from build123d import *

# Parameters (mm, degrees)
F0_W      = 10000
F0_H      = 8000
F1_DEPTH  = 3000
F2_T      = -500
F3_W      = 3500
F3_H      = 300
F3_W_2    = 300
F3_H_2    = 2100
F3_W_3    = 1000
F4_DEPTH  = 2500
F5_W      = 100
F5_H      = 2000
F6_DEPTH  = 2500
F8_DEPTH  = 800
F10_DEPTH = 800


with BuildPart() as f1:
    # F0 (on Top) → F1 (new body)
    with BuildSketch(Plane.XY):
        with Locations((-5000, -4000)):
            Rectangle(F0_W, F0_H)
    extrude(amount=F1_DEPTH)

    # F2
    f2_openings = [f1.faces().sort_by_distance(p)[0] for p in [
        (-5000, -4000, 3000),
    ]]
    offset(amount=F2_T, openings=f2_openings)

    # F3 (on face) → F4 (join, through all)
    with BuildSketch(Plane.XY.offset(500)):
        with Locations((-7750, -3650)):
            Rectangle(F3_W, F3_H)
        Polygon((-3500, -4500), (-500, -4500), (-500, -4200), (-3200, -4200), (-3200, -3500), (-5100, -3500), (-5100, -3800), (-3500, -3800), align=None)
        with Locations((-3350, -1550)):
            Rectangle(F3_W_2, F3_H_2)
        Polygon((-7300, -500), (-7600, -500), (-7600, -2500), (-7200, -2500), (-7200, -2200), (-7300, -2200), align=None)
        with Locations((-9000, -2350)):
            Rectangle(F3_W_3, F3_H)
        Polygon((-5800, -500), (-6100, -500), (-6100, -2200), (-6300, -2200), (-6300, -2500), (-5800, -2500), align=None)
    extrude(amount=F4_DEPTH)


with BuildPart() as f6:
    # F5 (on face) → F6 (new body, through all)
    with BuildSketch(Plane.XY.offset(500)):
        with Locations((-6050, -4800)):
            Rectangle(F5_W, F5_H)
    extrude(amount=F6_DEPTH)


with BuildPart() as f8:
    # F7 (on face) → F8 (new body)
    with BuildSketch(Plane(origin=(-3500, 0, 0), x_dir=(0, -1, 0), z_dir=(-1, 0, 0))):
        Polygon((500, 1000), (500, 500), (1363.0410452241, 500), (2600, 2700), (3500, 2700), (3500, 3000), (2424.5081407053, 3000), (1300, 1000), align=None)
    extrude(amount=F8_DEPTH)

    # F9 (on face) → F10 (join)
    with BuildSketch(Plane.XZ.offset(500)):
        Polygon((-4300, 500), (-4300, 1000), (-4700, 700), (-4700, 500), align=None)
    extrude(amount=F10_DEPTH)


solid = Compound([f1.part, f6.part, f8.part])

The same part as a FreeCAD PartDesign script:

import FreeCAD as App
import Part
import Sketcher
from FreeCAD import Vector
Q = App.Units.Quantity


def faces_at(feature, points):
    """Names of the faces that lie closest to the given points."""
    faces = feature.Shape.Faces
    near = lambda p: min(range(len(faces)), key=lambda i: faces[i].distToShape(Part.Vertex(*p))[0])
    return sorted({f"Face{near(p) + 1}" for p in points})


def add_polygon(sketch, points):
    """Adds a closed chain of lines whose ends are joined by coincident constraints."""
    first, n = sketch.GeometryCount, len(points)
    for a, b in zip(points, points[1:] + points[:1]):
        sketch.addGeometry(Part.LineSegment(App.Vector(*a, 0), App.Vector(*b, 0)), False)
    for i in range(n):
        sketch.addConstraint(Sketcher.Constraint("Coincident", first + i, 2, first + (i + 1) % n, 1))

doc = App.newDocument("Part")
body = doc.addObject("PartDesign::Body", "Body")

# Sketch on XY plane
sketch1 = doc.addObject("Sketcher::SketchObject", "Sketch")
body.addObject(sketch1)
sketch1.AttachmentSupport = (doc.XY_Plane, [""])
sketch1.MapMode = "FlatFace"
add_polygon(sketch1, [(-10000, 0), (-10000, -8000), (0, -8000), (0, 0)])  # lines 0-3
sketch1.addConstraint(Sketcher.Constraint("Vertical", 0))
sketch1.addConstraint(Sketcher.Constraint("Horizontal", 1))
sketch1.addConstraint(Sketcher.Constraint("Vertical", 2))
sketch1.addConstraint(Sketcher.Constraint("Horizontal", 3))
sketch1.addConstraint(Sketcher.Constraint("Coincident", 2, 2, -1, 1))
sketch1.addConstraint(Sketcher.Constraint("DistanceX", 1, 1, 1, 2, Q("10000 mm")))
sketch1.addConstraint(Sketcher.Constraint("DistanceY", 0, 2, 0, 1, Q("8000 mm")))
pad1 = doc.addObject("PartDesign::Pad", "Pad")
body.addObject(pad1)
pad1.Profile = sketch1
pad1.Length = 3000
doc.recompute()

thickness = doc.addObject("PartDesign::Thickness", "Thickness")
body.addObject(thickness)
thickness.Base = (pad1, faces_at(pad1, [(-5000, -4000, 3000)]))
thickness.Value = 500
thickness.Reversed = True
thickness.Join = "Arc"

# Sketch on XY plane
sketch2 = doc.addObject("Sketcher::SketchObject", "Sketch001")
body.addObject(sketch2)
sketch2.AttachmentSupport = (doc.XY_Plane, [""])
sketch2.MapMode = "FlatFace"
sketch2.AttachmentOffset = App.Placement(Vector(0, 0, 500), App.Rotation())
add_polygon(sketch2, [(-9500, -3500), (-9500, -3800), (-6000, -3800), (-6000, -3500)])  # lines 0-3
add_polygon(sketch2, [(-3500, -4500), (-500, -4500), (-500, -4200), (-3200, -4200), (-3200, -3500), (-5100, -3500), (-5100, -3800), (-3500, -3800)])  # lines 4-11
add_polygon(sketch2, [(-3500, -500), (-3500, -2600), (-3200, -2600), (-3200, -500)])  # lines 12-15
add_polygon(sketch2, [(-7300, -500), (-7600, -500), (-7600, -2500), (-7200, -2500), (-7200, -2200), (-7300, -2200)])  # lines 16-21
add_polygon(sketch2, [(-9500, -2200), (-9500, -2500), (-8500, -2500), (-8500, -2200)])  # lines 22-25
add_polygon(sketch2, [(-5800, -500), (-6100, -500), (-6100, -2200), (-6300, -2200), (-6300, -2500), (-5800, -2500)])  # lines 26-31
sketch2.addConstraint(Sketcher.Constraint("Vertical", 0))
sketch2.addConstraint(Sketcher.Constraint("Horizontal", 1))
sketch2.addConstraint(Sketcher.Constraint("Vertical", 2))
sketch2.addConstraint(Sketcher.Constraint("Horizontal", 3))
sketch2.addConstraint(Sketcher.Constraint("Horizontal", 4))
sketch2.addConstraint(Sketcher.Constraint("Vertical", 5))
sketch2.addConstraint(Sketcher.Constraint("Horizontal", 6))
sketch2.addConstraint(Sketcher.Constraint("Vertical", 7))
sketch2.addConstraint(Sketcher.Constraint("Horizontal", 8))
sketch2.addConstraint(Sketcher.Constraint("Vertical", 9))
sketch2.addConstraint(Sketcher.Constraint("Horizontal", 10))
sketch2.addConstraint(Sketcher.Constraint("Vertical", 11))
sketch2.addConstraint(Sketcher.Constraint("Vertical", 12))
sketch2.addConstraint(Sketcher.Constraint("Horizontal", 13))
sketch2.addConstraint(Sketcher.Constraint("Vertical", 14))
sketch2.addConstraint(Sketcher.Constraint("Horizontal", 15))
sketch2.addConstraint(Sketcher.Constraint("Horizontal", 16))
sketch2.addConstraint(Sketcher.Constraint("Vertical", 17))
sketch2.addConstraint(Sketcher.Constraint("Horizontal", 18))
sketch2.addConstraint(Sketcher.Constraint("Vertical", 19))
sketch2.addConstraint(Sketcher.Constraint("Horizontal", 20))
sketch2.addConstraint(Sketcher.Constraint("Vertical", 21))
sketch2.addConstraint(Sketcher.Constraint("Vertical", 22))
sketch2.addConstraint(Sketcher.Constraint("Horizontal", 23))
sketch2.addConstraint(Sketcher.Constraint("Vertical", 24))
sketch2.addConstraint(Sketcher.Constraint("Horizontal", 25))
sketch2.addConstraint(Sketcher.Constraint("Horizontal", 26))
sketch2.addConstraint(Sketcher.Constraint("Vertical", 27))
sketch2.addConstraint(Sketcher.Constraint("Horizontal", 28))
sketch2.addConstraint(Sketcher.Constraint("Vertical", 29))
sketch2.addConstraint(Sketcher.Constraint("Horizontal", 30))
sketch2.addConstraint(Sketcher.Constraint("Vertical", 31))
sketch2.addConstraint(Sketcher.Constraint("Horizontal", 3, 2, 7, 2))
sketch2.addConstraint(Sketcher.Constraint("Horizontal", 1, 2, 9, 2))
sketch2.addConstraint(Sketcher.Constraint("Horizontal", 15, 2, 16, 2))
sketch2.addConstraint(Sketcher.Constraint("Horizontal", 18, 2, 22, 2))
sketch2.addConstraint(Sketcher.Constraint("Horizontal", 20, 2, 24, 2))
sketch2.addConstraint(Sketcher.Constraint("Horizontal", 21, 2, 26, 2))
sketch2.addConstraint(Sketcher.Constraint("Horizontal", 25, 2, 27, 2))
sketch2.addConstraint(Sketcher.Constraint("Horizontal", 23, 2, 29, 2))
sketch2.addConstraint(Sketcher.Constraint("Vertical", 11, 2, 12, 2))
sketch2.addConstraint(Sketcher.Constraint("Vertical", 7, 2, 13, 2))
sketch2.addConstraint(Sketcher.Constraint("Vertical", 3, 2, 22, 2))
sketch2.addConstraint(Sketcher.Constraint("Equal", 15, 16))
sketch2.addConstraint(Sketcher.Constraint("Equal", 16, 26))
sketch2.addConstraint(Sketcher.Constraint("Equal", 26, 0))
sketch2.addConstraint(Sketcher.Constraint("Equal", 2, 5))
sketch2.addConstraint(Sketcher.Constraint("Equal", 9, 19))
sketch2.addConstraint(Sketcher.Constraint("DistanceX", 1, 1, 1, 2, Q("3500 mm")))
sketch2.addConstraint(Sketcher.Constraint("DistanceX", 4, 1, 4, 2, Q("3000 mm")))
sketch2.addConstraint(Sketcher.Constraint("DistanceX", 6, 2, 6, 1, Q("2700 mm")))
sketch2.addConstraint(Sketcher.Constraint("DistanceX", 8, 2, 8, 1, Q("1900 mm")))
sketch2.addConstraint(Sketcher.Constraint("DistanceX", 18, 1, 18, 2, Q("400 mm")))
sketch2.addConstraint(Sketcher.Constraint("DistanceX", 23, 1, 23, 2, Q("1000 mm")))
sketch2.addConstraint(Sketcher.Constraint("DistanceX", 28, 2, 28, 1, Q("200 mm")))
sketch2.addConstraint(Sketcher.Constraint("DistanceY", 7, 1, 7, 2, Q("700 mm")))
sketch2.addConstraint(Sketcher.Constraint("DistanceY", 12, 2, 12, 1, Q("2100 mm")))
sketch2.addConstraint(Sketcher.Constraint("DistanceY", 17, 2, 17, 1, Q("2000 mm")))
sketch2.addConstraint(Sketcher.Constraint("DistanceX", 0, 2, -1, 1, Q("9500 mm")))
sketch2.addConstraint(Sketcher.Constraint("DistanceY", 0, 2, -1, 1, Q("3800 mm")))
sketch2.addConstraint(Sketcher.Constraint("DistanceX", 4, 2, -1, 1, Q("500 mm")))
sketch2.addConstraint(Sketcher.Constraint("DistanceY", 12, 2, -1, 1, Q("2600 mm")))
sketch2.addConstraint(Sketcher.Constraint("DistanceX", 16, 2, -1, 1, Q("7600 mm")))
sketch2.addConstraint(Sketcher.Constraint("DistanceX", 26, 2, -1, 1, Q("6100 mm")))
pad2 = doc.addObject("PartDesign::Pad", "Pad001")
body.addObject(pad2)
pad2.Profile = sketch2
pad2.Length = 2500
body2 = doc.addObject("PartDesign::Body", "Body001")

# Sketch on XY plane
sketch3 = doc.addObject("Sketcher::SketchObject", "Sketch002")
body2.addObject(sketch3)
sketch3.AttachmentSupport = (doc.getObject("XY_Plane001"), [""])
sketch3.MapMode = "FlatFace"
sketch3.AttachmentOffset = App.Placement(Vector(0, 0, 500), App.Rotation())
add_polygon(sketch3, [(-6100, -3800), (-6100, -5800), (-6000, -5800), (-6000, -3800)])  # lines 0-3
sketch3.addConstraint(Sketcher.Constraint("Vertical", 0))
sketch3.addConstraint(Sketcher.Constraint("Horizontal", 1))
sketch3.addConstraint(Sketcher.Constraint("Vertical", 2))
sketch3.addConstraint(Sketcher.Constraint("Horizontal", 3))
sketch3.addConstraint(Sketcher.Constraint("DistanceX", 1, 1, 1, 2, Q("100 mm")))
sketch3.addConstraint(Sketcher.Constraint("DistanceY", 0, 2, 0, 1, Q("2000 mm")))
sketch3.addConstraint(Sketcher.Constraint("DistanceX", 0, 2, -1, 1, Q("6100 mm")))
sketch3.addConstraint(Sketcher.Constraint("DistanceY", 0, 2, -1, 1, Q("5800 mm")))
pad3 = doc.addObject("PartDesign::Pad", "Pad002")
body2.addObject(pad3)
pad3.Profile = sketch3
pad3.Length = 2500
body3 = doc.addObject("PartDesign::Body", "Body002")

# Sketch on YZ plane
sketch4 = doc.addObject("Sketcher::SketchObject", "Sketch003")
body3.addObject(sketch4)
sketch4.AttachmentSupport = (doc.getObject("YZ_Plane002"), [""])
sketch4.MapMode = "FlatFace"
sketch4.AttachmentOffset = App.Placement(Vector(0, 0, -3500), App.Rotation())
add_polygon(sketch4, [(-500, 1000), (-500, 500), (-1363, 500), (-2600, 2700), (-3500, 2700), (-3500, 3000), (-2425, 3000), (-1300, 1000)])  # lines 0-7
sketch4.addConstraint(Sketcher.Constraint("Vertical", 0))
sketch4.addConstraint(Sketcher.Constraint("Horizontal", 1))
sketch4.addConstraint(Sketcher.Constraint("Horizontal", 3))
sketch4.addConstraint(Sketcher.Constraint("Vertical", 4))
sketch4.addConstraint(Sketcher.Constraint("Horizontal", 5))
sketch4.addConstraint(Sketcher.Constraint("Horizontal", 7))
sketch4.addConstraint(Sketcher.Constraint("Parallel", 2, 6))
sketch4.addConstraint(Sketcher.Constraint("DistanceX", 3, 2, 3, 1, Q("900 mm")))
sketch4.addConstraint(Sketcher.Constraint("DistanceX", 7, 1, 7, 2, Q("800 mm")))
sketch4.addConstraint(Sketcher.Constraint("DistanceY", 0, 2, 0, 1, Q("500 mm")))
sketch4.addConstraint(Sketcher.Constraint("DistanceY", 4, 1, 4, 2, Q("300 mm")))
sketch4.addConstraint(Sketcher.Constraint("DistanceX", 0, 2, -1, 1, Q("500 mm")))
sketch4.addConstraint(Sketcher.Constraint("DistanceY", -1, 1, 0, 2, Q("500 mm")))
sketch4.addConstraint(Sketcher.Constraint("DistanceX", 2, 2, -1, 1, Q("2600 mm")))
sketch4.addConstraint(Sketcher.Constraint("DistanceY", -1, 1, 2, 2, Q("2700 mm")))
sketch4.addConstraint(Sketcher.Constraint("DistanceX", 5, 1, 5, 2, Q("1075.491859 mm")))
pad4 = doc.addObject("PartDesign::Pad", "Pad003")
body3.addObject(pad4)
pad4.Profile = sketch4
pad4.Length = 800
pad4.Reversed = True

# Sketch on XZ plane
sketch5 = doc.addObject("Sketcher::SketchObject", "Sketch004")
body3.addObject(sketch5)
sketch5.AttachmentSupport = (doc.getObject("XZ_Plane002"), [""])
sketch5.MapMode = "FlatFace"
sketch5.AttachmentOffset = App.Placement(Vector(0, 0, 500), App.Rotation())
add_polygon(sketch5, [(-4300, 500), (-4300, 1000), (-4700, 700), (-4700, 500)])  # lines 0-3
sketch5.addConstraint(Sketcher.Constraint("Vertical", 0))
sketch5.addConstraint(Sketcher.Constraint("Vertical", 2))
sketch5.addConstraint(Sketcher.Constraint("Horizontal", 3))
sketch5.addConstraint(Sketcher.Constraint("DistanceX", 3, 1, 3, 2, Q("400 mm")))
sketch5.addConstraint(Sketcher.Constraint("DistanceY", 0, 1, 0, 2, Q("500 mm")))
sketch5.addConstraint(Sketcher.Constraint("DistanceY", 2, 2, 2, 1, Q("200 mm")))
sketch5.addConstraint(Sketcher.Constraint("DistanceX", 0, 2, -1, 1, Q("4300 mm")))
sketch5.addConstraint(Sketcher.Constraint("DistanceY", -1, 1, 0, 2, Q("1000 mm")))
pad5 = doc.addObject("PartDesign::Pad", "Pad004")
body3.addObject(pad5)
pad5.Profile = sketch5
pad5.Length = 800

doc.recompute()
